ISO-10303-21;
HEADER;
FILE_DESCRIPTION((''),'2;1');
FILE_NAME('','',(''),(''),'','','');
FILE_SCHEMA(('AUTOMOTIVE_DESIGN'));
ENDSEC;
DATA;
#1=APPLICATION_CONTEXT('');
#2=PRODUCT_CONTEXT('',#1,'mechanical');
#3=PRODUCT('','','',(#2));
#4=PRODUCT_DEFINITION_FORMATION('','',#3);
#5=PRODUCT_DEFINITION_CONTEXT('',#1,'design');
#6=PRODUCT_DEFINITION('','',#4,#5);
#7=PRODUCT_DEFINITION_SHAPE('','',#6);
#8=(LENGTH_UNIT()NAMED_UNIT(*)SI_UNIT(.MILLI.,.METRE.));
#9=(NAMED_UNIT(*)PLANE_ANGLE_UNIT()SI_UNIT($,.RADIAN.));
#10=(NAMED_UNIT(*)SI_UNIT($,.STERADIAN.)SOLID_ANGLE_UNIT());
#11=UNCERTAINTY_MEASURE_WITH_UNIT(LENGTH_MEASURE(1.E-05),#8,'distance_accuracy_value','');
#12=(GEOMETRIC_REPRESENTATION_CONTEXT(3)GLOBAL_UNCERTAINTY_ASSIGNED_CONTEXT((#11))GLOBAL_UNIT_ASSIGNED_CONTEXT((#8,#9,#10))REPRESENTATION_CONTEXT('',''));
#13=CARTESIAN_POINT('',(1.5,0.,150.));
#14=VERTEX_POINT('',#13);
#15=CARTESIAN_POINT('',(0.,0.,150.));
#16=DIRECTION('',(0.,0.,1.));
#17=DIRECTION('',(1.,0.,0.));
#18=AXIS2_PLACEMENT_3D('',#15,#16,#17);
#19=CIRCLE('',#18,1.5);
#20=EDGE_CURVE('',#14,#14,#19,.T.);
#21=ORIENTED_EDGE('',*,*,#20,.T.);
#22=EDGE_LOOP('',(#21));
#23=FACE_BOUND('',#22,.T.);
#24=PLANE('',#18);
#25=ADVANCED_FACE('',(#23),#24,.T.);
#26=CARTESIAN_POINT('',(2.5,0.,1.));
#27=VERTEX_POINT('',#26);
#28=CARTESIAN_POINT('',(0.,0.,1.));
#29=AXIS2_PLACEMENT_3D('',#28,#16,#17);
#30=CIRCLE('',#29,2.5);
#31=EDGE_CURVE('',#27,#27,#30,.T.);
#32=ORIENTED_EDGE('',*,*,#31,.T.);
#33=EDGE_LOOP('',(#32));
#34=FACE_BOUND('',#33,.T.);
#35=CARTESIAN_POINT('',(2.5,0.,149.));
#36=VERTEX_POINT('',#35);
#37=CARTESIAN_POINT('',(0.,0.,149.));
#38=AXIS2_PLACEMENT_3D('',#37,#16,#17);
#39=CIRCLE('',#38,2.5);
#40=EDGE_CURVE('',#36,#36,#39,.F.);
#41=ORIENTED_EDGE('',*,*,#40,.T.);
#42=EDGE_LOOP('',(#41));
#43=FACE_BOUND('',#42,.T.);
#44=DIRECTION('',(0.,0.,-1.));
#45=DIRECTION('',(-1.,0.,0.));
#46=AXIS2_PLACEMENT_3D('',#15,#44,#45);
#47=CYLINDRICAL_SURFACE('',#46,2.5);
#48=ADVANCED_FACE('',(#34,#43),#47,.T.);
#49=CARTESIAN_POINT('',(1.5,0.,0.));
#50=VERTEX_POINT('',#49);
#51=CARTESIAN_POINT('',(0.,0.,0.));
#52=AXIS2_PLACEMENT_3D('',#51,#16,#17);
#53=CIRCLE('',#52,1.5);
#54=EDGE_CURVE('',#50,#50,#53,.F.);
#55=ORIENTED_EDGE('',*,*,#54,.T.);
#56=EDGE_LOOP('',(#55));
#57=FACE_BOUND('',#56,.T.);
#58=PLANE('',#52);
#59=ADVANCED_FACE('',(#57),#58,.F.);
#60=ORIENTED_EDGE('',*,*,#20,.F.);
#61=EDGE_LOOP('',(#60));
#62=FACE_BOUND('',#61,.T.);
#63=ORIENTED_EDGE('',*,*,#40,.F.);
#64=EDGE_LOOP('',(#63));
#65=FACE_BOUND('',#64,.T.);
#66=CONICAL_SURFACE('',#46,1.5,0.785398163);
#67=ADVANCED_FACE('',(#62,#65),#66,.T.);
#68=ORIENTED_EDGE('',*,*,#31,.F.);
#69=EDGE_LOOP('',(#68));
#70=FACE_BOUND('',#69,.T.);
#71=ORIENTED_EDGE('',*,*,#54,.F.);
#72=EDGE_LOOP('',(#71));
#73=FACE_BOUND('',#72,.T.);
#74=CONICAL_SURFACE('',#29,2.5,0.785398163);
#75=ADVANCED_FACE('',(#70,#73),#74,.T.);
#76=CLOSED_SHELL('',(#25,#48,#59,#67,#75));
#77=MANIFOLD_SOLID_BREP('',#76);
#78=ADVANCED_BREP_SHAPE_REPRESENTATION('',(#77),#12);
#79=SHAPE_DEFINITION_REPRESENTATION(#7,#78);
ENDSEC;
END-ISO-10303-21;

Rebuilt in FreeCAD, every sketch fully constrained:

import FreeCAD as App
import Part
import Sketcher
Q = App.Units.Quantity


def edges_at(feature, points):
    """Names of the edges that pass closest to the given points."""
    edges = feature.Shape.Edges
    near = lambda p: min(range(len(edges)), key=lambda i: edges[i].distToShape(Part.Vertex(*p))[0])
    return sorted({f"Edge{near(p) + 1}" for p in points})

doc = App.newDocument("Part")
body = doc.addObject("PartDesign::Body", "Body")

# Sketch on XY plane
sketch1 = doc.addObject("Sketcher::SketchObject", "Sketch")
body.addObject(sketch1)
sketch1.AttachmentSupport = (doc.XY_Plane, [""])
sketch1.MapMode = "FlatFace"
sketch1.addGeometry(Part.Circle(App.Vector(0, 0, 0), App.Vector(0, 0, 1), 2.5), False)
sketch1.addConstraint([
    Sketcher.Constraint("Coincident", 0, 3, -1, 1),
    Sketcher.Constraint("Diameter", 0, Q("5 mm")),
])
pad1 = doc.addObject("PartDesign::Pad", "Pad")
body.addObject(pad1)
pad1.Profile = sketch1
pad1.Length = 150
doc.recompute()

chamfer = doc.addObject("PartDesign::Chamfer", "Chamfer")
body.addObject(chamfer)
chamfer.Base = (pad1, edges_at(pad1, [(-2.5, 0, 0), (-2.5, 0, 150)]))
chamfer.Size = 1

doc.recompute()
